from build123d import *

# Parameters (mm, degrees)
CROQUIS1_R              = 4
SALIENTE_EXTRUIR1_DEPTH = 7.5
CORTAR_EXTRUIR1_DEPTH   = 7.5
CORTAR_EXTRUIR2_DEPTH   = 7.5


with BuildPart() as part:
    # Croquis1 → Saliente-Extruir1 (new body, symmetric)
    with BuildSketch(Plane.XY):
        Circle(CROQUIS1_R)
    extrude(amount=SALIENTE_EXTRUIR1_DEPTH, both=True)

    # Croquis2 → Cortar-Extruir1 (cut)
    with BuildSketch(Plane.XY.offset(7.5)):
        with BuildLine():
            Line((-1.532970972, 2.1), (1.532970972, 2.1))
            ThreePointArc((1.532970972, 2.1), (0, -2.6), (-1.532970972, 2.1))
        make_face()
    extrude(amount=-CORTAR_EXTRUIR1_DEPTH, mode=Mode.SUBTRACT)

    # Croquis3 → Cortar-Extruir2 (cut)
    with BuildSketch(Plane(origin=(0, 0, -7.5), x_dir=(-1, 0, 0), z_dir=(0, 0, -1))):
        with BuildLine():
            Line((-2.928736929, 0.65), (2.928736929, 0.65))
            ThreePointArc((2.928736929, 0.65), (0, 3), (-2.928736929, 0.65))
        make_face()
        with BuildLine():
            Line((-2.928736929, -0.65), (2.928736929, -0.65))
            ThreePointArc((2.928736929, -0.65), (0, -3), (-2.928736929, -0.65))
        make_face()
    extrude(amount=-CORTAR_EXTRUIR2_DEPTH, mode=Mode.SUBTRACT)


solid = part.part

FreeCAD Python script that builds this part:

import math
import FreeCAD as App
import Part
import Sketcher

V = App.Vector

doc = App.newDocument("Part")
params = doc.addObject("Spreadsheet::Sheet", "Params")
for row, (alias, value) in enumerate([
    ("sketch1_diameter", "8 mm"),
    ("pad1_length", "15 mm"),
    ("sketch2_radius", "2.6 mm"),
    ("pocket1_length", "7.5 mm"),
    ("sketch3_radius", "3 mm"),
    ("pocket2_length", "7.5 mm"),
], start=1):
    params.set(f"A{row}", alias)
    params.set(f"B{row}", "=" + value)
    params.setAlias(f"B{row}", alias)

body = doc.addObject("PartDesign::Body", "Body")

# Sketch on XY plane
sketch1 = body.newObject("Sketcher::SketchObject", "Sketch")
sketch1.AttachmentSupport = (doc.getObject("XY_Plane"), [""])
sketch1.MapMode = "FlatFace"
sketch1.addGeometry(Part.Circle(V(0, 0, 0), V(0, 0, 1), 4), False)
sketch1.addConstraint([
    Sketcher.Constraint("Coincident", 0, 3, -1, 1),
    Sketcher.Constraint("Diameter", 0, 8.0),
])
sketch1.setExpression("Constraints[1]", "Params.sketch1_diameter")
pad1 = body.newObject("PartDesign::Pad", "Pad")
pad1.Profile = sketch1
pad1.setExpression("Length", "Params.pad1_length")
pad1.Midplane = True

# Sketch on XY plane
sketch2 = body.newObject("Sketcher::SketchObject", "Sketch001")
sketch2.AttachmentSupport = (doc.getObject("XY_Plane"), [""])
sketch2.MapMode = "FlatFace"
sketch2.AttachmentOffset = App.Placement(V(0, 0, 7.5), App.Rotation())
sketch2.addGeometry([
    Part.LineSegment(V(1.532971, 2.1, 0), V(-1.532971, 2.1, 0)),
    Part.ArcOfCircle(Part.Circle(V(0, 0, 0), V(0, 0, 1), 2.6), math.radians(126.128927), math.radians(413.871073)),
], False)
sketch2.addConstraint([
    Sketcher.Constraint("Coincident", 0, 1, 1, 2),
    Sketcher.Constraint("Coincident", 1, 1, 0, 2),
    Sketcher.Constraint("Horizontal", 0),
    Sketcher.Constraint("Coincident", 1, 3, -1, 1),
    Sketcher.Constraint("Radius", 1, 2.6),
    Sketcher.Constraint("DistanceY", -1, 1, 0, 1, 2.1),
])
sketch2.setExpression("Constraints[4]", "Params.sketch2_radius")
pocket1 = body.newObject("PartDesign::Pocket", "Pocket")
pocket1.Profile = sketch2
pocket1.setExpression("Length", "Params.pocket1_length")

# Sketch on XY plane
sketch3 = body.newObject("Sketcher::SketchObject", "Sketch002")
sketch3.AttachmentSupport = (doc.getObject("XY_Plane"), [""])
sketch3.MapMode = "FlatFace"
sketch3.AttachmentOffset = App.Placement(V(0, 0, -7.5), App.Rotation())
sketch3.addGeometry([
    Part.LineSegment(V(2.928737, 0.65, 0), V(-2.928737, 0.65, 0)),
    Part.ArcOfCircle(Part.Circle(V(0, 0, 0), V(0, 0, 1), 3), math.radians(12.513325), math.radians(167.486675)),
    Part.LineSegment(V(-2.928737, -0.65, 0), V(2.928737, -0.65, 0)),
    Part.ArcOfCircle(Part.Circle(V(0, 0, 0), V(0, 0, 1), 3), math.radians(-167.486675), math.radians(-12.513325)),
], False)
sketch3.addConstraint([
    Sketcher.Constraint("Coincident", 0, 1, 1, 1),
    Sketcher.Constraint("Coincident", 1, 2, 0, 2),
    Sketcher.Constraint("Coincident", 2, 1, 3, 1),
    Sketcher.Constraint("Coincident", 3, 2, 2, 2),
    Sketcher.Constraint("Horizontal", 0),
    Sketcher.Constraint("Horizontal", 2),
    Sketcher.Constraint("Coincident", 1, 3, -1, 1),
    Sketcher.Constraint("Coincident", 3, 3, -1, 1),
    Sketcher.Constraint("Equal", 1, 3),
    Sketcher.Constraint("Vertical", 1, 2, 2, 1),
    Sketcher.Constraint("Radius", 1, 3.0),
    Sketcher.Constraint("DistanceY", 2, 1, 1, 2, 1.3),
])
sketch3.setExpression("Constraints[10]", "Params.sketch3_radius")
pocket2 = body.newObject("PartDesign::Pocket", "Pocket001")
pocket2.Profile = sketch3
pocket2.setExpression("Length", "Params.pocket2_length")
pocket2.Reversed = True

doc.recompute()
